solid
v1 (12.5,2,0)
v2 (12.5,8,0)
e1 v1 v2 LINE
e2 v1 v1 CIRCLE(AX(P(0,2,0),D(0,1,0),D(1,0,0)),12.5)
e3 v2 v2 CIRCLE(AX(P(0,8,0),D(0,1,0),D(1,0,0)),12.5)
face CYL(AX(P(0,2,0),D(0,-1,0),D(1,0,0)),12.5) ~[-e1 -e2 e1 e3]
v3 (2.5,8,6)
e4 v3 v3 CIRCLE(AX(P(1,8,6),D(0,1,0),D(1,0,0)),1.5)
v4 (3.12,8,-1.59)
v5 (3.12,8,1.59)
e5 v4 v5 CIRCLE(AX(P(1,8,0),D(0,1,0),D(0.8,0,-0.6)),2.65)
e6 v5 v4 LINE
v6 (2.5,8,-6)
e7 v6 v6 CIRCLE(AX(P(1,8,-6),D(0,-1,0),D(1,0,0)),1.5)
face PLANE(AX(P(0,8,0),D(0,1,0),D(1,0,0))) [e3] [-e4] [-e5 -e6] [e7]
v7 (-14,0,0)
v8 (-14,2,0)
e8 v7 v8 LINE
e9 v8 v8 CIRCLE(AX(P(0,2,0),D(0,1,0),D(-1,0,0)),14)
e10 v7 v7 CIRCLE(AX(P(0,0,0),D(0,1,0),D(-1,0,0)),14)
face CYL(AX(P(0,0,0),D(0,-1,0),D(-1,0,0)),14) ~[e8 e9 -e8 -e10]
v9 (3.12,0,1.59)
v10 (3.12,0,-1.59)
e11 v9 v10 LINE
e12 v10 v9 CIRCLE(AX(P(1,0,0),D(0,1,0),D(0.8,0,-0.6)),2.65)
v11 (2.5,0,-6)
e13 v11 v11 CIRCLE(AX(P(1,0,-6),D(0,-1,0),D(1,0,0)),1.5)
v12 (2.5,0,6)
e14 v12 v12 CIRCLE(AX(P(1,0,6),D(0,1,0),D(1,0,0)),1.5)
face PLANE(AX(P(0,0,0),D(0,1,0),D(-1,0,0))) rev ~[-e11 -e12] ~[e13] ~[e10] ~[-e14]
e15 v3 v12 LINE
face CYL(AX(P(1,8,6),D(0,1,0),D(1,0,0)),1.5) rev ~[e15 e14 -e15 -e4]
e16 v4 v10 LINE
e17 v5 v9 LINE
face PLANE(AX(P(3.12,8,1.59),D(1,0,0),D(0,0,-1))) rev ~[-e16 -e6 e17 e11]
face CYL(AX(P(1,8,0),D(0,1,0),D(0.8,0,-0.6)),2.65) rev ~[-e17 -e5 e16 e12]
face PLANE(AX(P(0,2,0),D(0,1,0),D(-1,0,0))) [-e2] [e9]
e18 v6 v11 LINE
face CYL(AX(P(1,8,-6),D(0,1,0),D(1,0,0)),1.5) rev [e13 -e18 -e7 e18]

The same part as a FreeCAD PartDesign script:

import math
import FreeCAD as App
import Part
import Sketcher
from FreeCAD import Vector
Q = App.Units.Quantity

doc = App.newDocument("Part")
params = doc.addObject("Spreadsheet::Sheet", "Params")
for row, (alias, value) in enumerate([
    ("sketch1_diameter", "28 mm"),
    ("pad1_length", "2 mm"),
    ("sketch2_diameter", "25 mm"),
    ("pad2_length", "6 mm"),
    ("sketch3_diameter", "3 mm"),
    ("pocket1_length", "8 mm"),
    ("sketch4_radius", "2.65 mm"),
    ("sketch4_height", "3.18 mm"),
    ("pocket2_length", "8 mm"),
], start=1):
    params.set(f"A{row}", alias)
    params.set(f"B{row}", "=" + value)
    params.setAlias(f"B{row}", alias)

body = doc.addObject("PartDesign::Body", "Body")

# Sketch on XZ plane
sketch1 = body.newObject("Sketcher::SketchObject", "Sketch")
sketch1.AttachmentSupport = (doc.getObject("XZ_Plane"), [""])
sketch1.MapMode = "FlatFace"
sketch1.addGeometry(Part.Circle(Vector(0, 0, 0), Vector(0, 0, 1), 14), False)
sketch1.addConstraint([
    Sketcher.Constraint("Coincident", 0, 3, -1, 1),
    Sketcher.Constraint("Diameter", 0, Q("28 mm")),
])
sketch1.setExpression("Constraints[1]", "Params.sketch1_diameter")
pad1 = body.newObject("PartDesign::Pad", "Pad")
pad1.Profile = sketch1
pad1.setExpression("Length", "Params.pad1_length")
pad1.Reversed = True

# Sketch on XZ plane
sketch2 = body.newObject("Sketcher::SketchObject", "Sketch001")
sketch2.AttachmentSupport = (doc.getObject("XZ_Plane"), [""])
sketch2.MapMode = "FlatFace"
sketch2.AttachmentOffset = App.Placement(Vector(0, 0, -2), App.Rotation())
sketch2.addGeometry(Part.Circle(Vector(0, 0, 0), Vector(0, 0, 1), 12), False)
sketch2.addConstraint([
    Sketcher.Constraint("Coincident", 0, 3, -1, 1),
    Sketcher.Constraint("Diameter", 0, Q("25 mm")),
])
sketch2.setExpression("Constraints[1]", "Params.sketch2_diameter")
pad2 = body.newObject("PartDesign::Pad", "Pad001")
pad2.Profile = sketch2
pad2.setExpression("Length", "Params.pad2_length")
pad2.Reversed = True

# Sketch on XZ plane
sketch3 = body.newObject("Sketcher::SketchObject", "Sketch002")
sketch3.AttachmentSupport = (doc.getObject("XZ_Plane"), [""])
sketch3.MapMode = "FlatFace"
sketch3.AttachmentOffset = App.Placement(Vector(0, 0, -8), App.Rotation())
sketch3.addGeometry(Part.Circle(Vector(1, 6, 0), Vector(0, 0, 1), 1.5), False)
sketch3.addConstraint([
    Sketcher.Constraint("Diameter", 0, Q("3 mm")),
    Sketcher.Constraint("DistanceX", -1, 1, 0, 3, Q("1 mm")),
    Sketcher.Constraint("DistanceY", -1, 1, 0, 3, Q("6 mm")),
])
sketch3.setExpression("Constraints[0]", "Params.sketch3_diameter")
pocket1 = body.newObject("PartDesign::Pocket", "Pocket")
pocket1.Profile = sketch3
pocket1.setExpression("Length", "Params.pocket1_length")
pocket1.Reversed = True
doc.recompute()

mirrored = body.newObject("PartDesign::Mirrored", "Mirrored")
mirrored.Originals = [pocket1]
mirrored.MirrorPlane = (doc.getObject("XY_Plane"), [""])
body.Tip = mirrored

# Sketch on XZ plane
sketch4 = body.newObject("Sketcher::SketchObject", "Sketch003")
sketch4.AttachmentSupport = (doc.getObject("XZ_Plane"), [""])
sketch4.MapMode = "FlatFace"
sketch4.AttachmentOffset = App.Placement(Vector(0, 0, -8), App.Rotation())
sketch4.addGeometry([
    Part.LineSegment(Vector(3.1, 1.6, 0), Vector(3.1, -1.6, 0)),
    Part.ArcOfCircle(Part.Circle(Vector(1, 0, 0), Vector(0, 0, 1), 2.7), math.radians(37), math.radians(323)),
], False)
sketch4.addConstraint([
    Sketcher.Constraint("Coincident", 0, 1, 1, 1),
    Sketcher.Constraint("Coincident", 1, 2, 0, 2),
    Sketcher.Constraint("Vertical", 0),
    Sketcher.Constraint("PointOnObject", 1, 3, -1),
    Sketcher.Constraint("Radius", 1, Q("2.65 mm")),
    Sketcher.Constraint("DistanceX", -1, 1, 1, 3, Q("1 mm")),
    Sketcher.Constraint("DistanceY", 0, 2, 0, 1, Q("3.18 mm")),
])
sketch4.setExpression("Constraints[4]", "Params.sketch4_radius")
sketch4.setExpression("Constraints[6]", "Params.sketch4_height")
pocket2 = body.newObject("PartDesign::Pocket", "Pocket001")
pocket2.Profile = sketch4
pocket2.setExpression("Length", "Params.pocket2_length")
pocket2.Reversed = True

doc.recompute()
